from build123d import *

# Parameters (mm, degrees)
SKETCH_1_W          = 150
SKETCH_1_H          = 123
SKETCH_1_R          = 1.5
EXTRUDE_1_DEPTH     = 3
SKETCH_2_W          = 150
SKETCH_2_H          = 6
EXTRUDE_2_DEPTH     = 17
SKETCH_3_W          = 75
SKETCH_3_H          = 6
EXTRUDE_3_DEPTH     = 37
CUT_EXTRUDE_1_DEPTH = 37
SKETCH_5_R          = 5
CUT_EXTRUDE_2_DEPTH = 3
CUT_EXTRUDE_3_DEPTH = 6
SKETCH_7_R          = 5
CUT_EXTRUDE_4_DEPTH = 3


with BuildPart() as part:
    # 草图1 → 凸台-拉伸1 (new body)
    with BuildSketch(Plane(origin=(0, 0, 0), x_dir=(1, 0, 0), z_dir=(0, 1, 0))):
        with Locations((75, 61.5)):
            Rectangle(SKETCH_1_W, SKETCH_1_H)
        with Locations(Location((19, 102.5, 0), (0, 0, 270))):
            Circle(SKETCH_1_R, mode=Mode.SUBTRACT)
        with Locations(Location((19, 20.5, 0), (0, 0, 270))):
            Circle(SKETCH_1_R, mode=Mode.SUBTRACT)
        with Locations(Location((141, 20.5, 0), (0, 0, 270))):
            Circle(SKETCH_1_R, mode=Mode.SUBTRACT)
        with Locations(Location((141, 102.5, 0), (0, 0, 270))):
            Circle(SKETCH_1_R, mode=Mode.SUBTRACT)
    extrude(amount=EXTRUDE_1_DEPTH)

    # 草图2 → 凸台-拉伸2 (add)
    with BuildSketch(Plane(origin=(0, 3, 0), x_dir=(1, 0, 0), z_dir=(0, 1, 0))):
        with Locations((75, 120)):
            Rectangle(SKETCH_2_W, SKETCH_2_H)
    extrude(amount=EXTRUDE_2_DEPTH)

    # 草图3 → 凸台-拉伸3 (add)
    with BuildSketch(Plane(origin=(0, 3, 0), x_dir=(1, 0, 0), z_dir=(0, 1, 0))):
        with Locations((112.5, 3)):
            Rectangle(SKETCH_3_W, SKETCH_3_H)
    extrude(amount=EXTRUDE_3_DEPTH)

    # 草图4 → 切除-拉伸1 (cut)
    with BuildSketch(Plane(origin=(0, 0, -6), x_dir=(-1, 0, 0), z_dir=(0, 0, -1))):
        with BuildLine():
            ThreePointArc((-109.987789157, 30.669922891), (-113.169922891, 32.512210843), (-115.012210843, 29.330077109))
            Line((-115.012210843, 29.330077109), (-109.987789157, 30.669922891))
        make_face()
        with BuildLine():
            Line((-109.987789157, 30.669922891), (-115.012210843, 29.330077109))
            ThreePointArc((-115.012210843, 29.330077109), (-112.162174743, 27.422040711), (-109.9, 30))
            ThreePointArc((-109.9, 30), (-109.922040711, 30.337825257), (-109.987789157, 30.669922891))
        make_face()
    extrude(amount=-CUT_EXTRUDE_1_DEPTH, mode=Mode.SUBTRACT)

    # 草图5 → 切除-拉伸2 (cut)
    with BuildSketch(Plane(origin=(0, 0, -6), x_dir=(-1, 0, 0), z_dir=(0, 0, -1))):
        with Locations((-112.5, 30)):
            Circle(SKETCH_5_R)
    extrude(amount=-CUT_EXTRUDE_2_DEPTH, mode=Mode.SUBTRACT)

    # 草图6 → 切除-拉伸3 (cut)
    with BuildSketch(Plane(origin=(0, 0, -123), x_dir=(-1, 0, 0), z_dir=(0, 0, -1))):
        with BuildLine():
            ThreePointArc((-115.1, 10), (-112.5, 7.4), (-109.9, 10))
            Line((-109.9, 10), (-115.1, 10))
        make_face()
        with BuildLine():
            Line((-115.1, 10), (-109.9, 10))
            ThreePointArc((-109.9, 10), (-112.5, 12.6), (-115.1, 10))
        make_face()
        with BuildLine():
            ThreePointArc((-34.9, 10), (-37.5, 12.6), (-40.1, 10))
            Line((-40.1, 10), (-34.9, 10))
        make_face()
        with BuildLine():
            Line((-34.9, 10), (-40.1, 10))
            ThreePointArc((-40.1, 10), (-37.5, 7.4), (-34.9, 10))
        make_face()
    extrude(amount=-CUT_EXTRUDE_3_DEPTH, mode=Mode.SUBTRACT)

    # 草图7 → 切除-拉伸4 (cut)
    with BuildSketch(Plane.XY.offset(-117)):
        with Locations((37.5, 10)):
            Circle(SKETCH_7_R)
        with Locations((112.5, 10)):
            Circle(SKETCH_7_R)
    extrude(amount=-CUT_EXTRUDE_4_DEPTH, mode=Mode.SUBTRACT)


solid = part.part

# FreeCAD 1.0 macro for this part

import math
import FreeCAD as App
import Part
import Sketcher
from FreeCAD import Vector


def add_polygon(sketch, points):
    """Adds a closed chain of lines whose ends are joined by coincident constraints."""
    first, n = sketch.GeometryCount, len(points)
    for a, b in zip(points, points[1:] + points[:1]):
        sketch.addGeometry(Part.LineSegment(App.Vector(*a, 0), App.Vector(*b, 0)), False)
    for i in range(n):
        sketch.addConstraint(Sketcher.Constraint("Coincident", first + i, 2, first + (i + 1) % n, 1))

doc = App.newDocument("Part")
body = doc.addObject("PartDesign::Body", "Body")

# Sketch on XZ plane
sketch1 = body.newObject("Sketcher::SketchObject", "Sketch")
sketch1.AttachmentSupport = (doc.getObject("XZ_Plane"), [""])
sketch1.MapMode = "FlatFace"
add_polygon(sketch1, [(0, -123), (0, 0), (150, 0), (150, -123)])  # lines 0-3
sketch1.addGeometry(Part.Circle(Vector(19, -20.5, 0), Vector(0, 0, 1), 1.5), False)  # 4
sketch1.addGeometry(Part.Circle(Vector(141, -20.5, 0), Vector(0, 0, 1), 1.5), False)  # 5
sketch1.addGeometry(Part.Circle(Vector(19, -102.5, 0), Vector(0, 0, 1), 1.5), False)  # 6
sketch1.addGeometry(Part.Circle(Vector(141, -102.5, 0), Vector(0, 0, 1), 1.5), False)  # 7
sketch1.addConstraint([
    Sketcher.Constraint("Vertical", 0),
    Sketcher.Constraint("Horizontal", 1),
    Sketcher.Constraint("Vertical", 2),
    Sketcher.Constraint("Horizontal", 3),
    Sketcher.Constraint("Coincident", 0, 2, -1, 1),
    Sketcher.Constraint("Equal", 4, 5),
    Sketcher.Constraint("Equal", 5, 6),
    Sketcher.Constraint("Equal", 6, 7),
    Sketcher.Constraint("Horizontal", 4, 3, 5, 3),
    Sketcher.Constraint("Horizontal", 6, 3, 7, 3),
    Sketcher.Constraint("Vertical", 4, 3, 6, 3),
    Sketcher.Constraint("Vertical", 5, 3, 7, 3),
    Sketcher.Constraint("Diameter", 4, 3.0),
    Sketcher.Constraint("DistanceX", 1, 1, 1, 2, 150.0),
    Sketcher.Constraint("DistanceY", 0, 1, 0, 2, 123.0),
    Sketcher.Constraint("DistanceX", -1, 1, 4, 3, 19.0),
    Sketcher.Constraint("DistanceX", -1, 1, 5, 3, 141.0),
    Sketcher.Constraint("DistanceY", 6, 3, 4, 3, 82.0),
    Sketcher.Constraint("DistanceY", 4, 3, -1, 1, 20.5),
])
pad1 = body.newObject("PartDesign::Pad", "Pad")
pad1.Profile = sketch1
pad1.Length = 3
pad1.Reversed = True

# Sketch on XZ plane
sketch2 = body.newObject("Sketcher::SketchObject", "Sketch001")
sketch2.AttachmentSupport = (doc.getObject("XZ_Plane"), [""])
sketch2.MapMode = "FlatFace"
sketch2.AttachmentOffset = App.Placement(Vector(0, 0, -3), App.Rotation())
add_polygon(sketch2, [(0, -123), (0, -117), (150, -117), (150, -123)])  # lines 0-3
sketch2.addConstraint([
    Sketcher.Constraint("Vertical", 0),
    Sketcher.Constraint("Horizontal", 1),
    Sketcher.Constraint("Vertical", 2),
    Sketcher.Constraint("Horizontal", 3),
    Sketcher.Constraint("PointOnObject", 0, 2, -2),
    Sketcher.Constraint("DistanceX", 1, 1, 1, 2, 150.0),
    Sketcher.Constraint("DistanceY", 0, 1, 0, 2, 6.0),
    Sketcher.Constraint("DistanceY", 0, 2, -1, 1, 117.0),
])
pad2 = body.newObject("PartDesign::Pad", "Pad001")
pad2.Profile = sketch2
pad2.Length = 17
pad2.Reversed = True

# Sketch on XZ plane
sketch3 = body.newObject("Sketcher::SketchObject", "Sketch002")
sketch3.AttachmentSupport = (doc.getObject("XZ_Plane"), [""])
sketch3.MapMode = "FlatFace"
sketch3.AttachmentOffset = App.Placement(Vector(0, 0, -3), App.Rotation())
add_polygon(sketch3, [(75, -6), (75, 0), (150, 0), (150, -6)])  # lines 0-3
sketch3.addConstraint([
    Sketcher.Constraint("Vertical", 0),
    Sketcher.Constraint("Horizontal", 1),
    Sketcher.Constraint("Vertical", 2),
    Sketcher.Constraint("Horizontal", 3),
    Sketcher.Constraint("PointOnObject", 0, 2, -1),
    Sketcher.Constraint("DistanceX", 1, 1, 1, 2, 75.0),
    Sketcher.Constraint("DistanceY", 0, 1, 0, 2, 6.0),
    Sketcher.Constraint("DistanceX", -1, 1, 0, 2, 75.0),
])
pad3 = body.newObject("PartDesign::Pad", "Pad002")
pad3.Profile = sketch3
pad3.Length = 37
pad3.Reversed = True

# Sketch on XY plane
sketch4 = body.newObject("Sketcher::SketchObject", "Sketch003")
sketch4.AttachmentSupport = (doc.getObject("XY_Plane"), [""])
sketch4.MapMode = "FlatFace"
sketch4.AttachmentOffset = App.Placement(Vector(0, 0, -6), App.Rotation())
sketch4.addGeometry([
    Part.ArcOfCircle(Part.Circle(Vector(112.5, 30, 0), Vector(0, 0, 1), 2.6), math.radians(-15), math.radians(165)),
    Part.ArcOfCircle(Part.Circle(Vector(112.5, 30, 0), Vector(0, 0, 1), 2.6), math.radians(180), math.radians(345)),
    Part.ArcOfCircle(Part.Circle(Vector(112.5, 30, 0), Vector(0, 0, 1), 2.6), math.radians(165.07), math.radians(180)),
], False)
sketch4.addConstraint([
    Sketcher.Constraint("Tangent", 0, 1, 1, 2),
    Sketcher.Constraint("Tangent", 1, 1, 2, 2),
    Sketcher.Constraint("Tangent", 2, 1, 0, 2),
    Sketcher.Constraint("Horizontal", 2, 3, 1, 1),
    Sketcher.Constraint("Radius", 0, 2.6),
    Sketcher.Constraint("DistanceY", -1, 1, 0, 3, 30.0),
    Sketcher.Constraint("DistanceX", -1, 1, 0, 3, 112.5),
    Sketcher.Constraint("DistanceX", -1, 1, 0, 1, 115.012211),
    Sketcher.Constraint("DistanceX", -1, 1, 2, 1, 109.987789),
])
pocket1 = body.newObject("PartDesign::Pocket", "Pocket")
pocket1.Profile = sketch4
pocket1.Length = 37
pocket1.Reversed = True

# Sketch on XY plane
sketch5 = body.newObject("Sketcher::SketchObject", "Sketch004")
sketch5.AttachmentSupport = (doc.getObject("XY_Plane"), [""])
sketch5.MapMode = "FlatFace"
sketch5.AttachmentOffset = App.Placement(Vector(0, 0, -6), App.Rotation())
sketch5.addGeometry(Part.Circle(Vector(112, 30, 0), Vector(0, 0, 1), 5), False)
sketch5.addConstraint([
    Sketcher.Constraint("Diameter", 0, 10.0),
    Sketcher.Constraint("DistanceY", -1, 1, 0, 3, 30.0),
    Sketcher.Constraint("DistanceX", -1, 1, 0, 3, 112.5),
])
pocket2 = body.newObject("PartDesign::Pocket", "Pocket001")
pocket2.Profile = sketch5
pocket2.Length = 3
pocket2.Reversed = True

# Sketch on XY plane
sketch6 = body.newObject("Sketcher::SketchObject", "Sketch005")
sketch6.AttachmentSupport = (doc.getObject("XY_Plane"), [""])
sketch6.MapMode = "FlatFace"
sketch6.AttachmentOffset = App.Placement(Vector(0, 0, -123), App.Rotation())
sketch6.addGeometry([
    Part.Circle(Vector(112.5, 10, 0), Vector(0, 0, 1), 2.6),
    Part.Circle(Vector(37.5, 10, 0), Vector(0, 0, 1), 2.6),
], False)
sketch6.addConstraint([
    Sketcher.Constraint("Equal", 0, 1),
    Sketcher.Constraint("Horizontal", 0, 3, 1, 3),
    Sketcher.Constraint("Diameter", 0, 5.2),
    Sketcher.Constraint("DistanceY", -1, 1, 0, 3, 10.0),
    Sketcher.Constraint("DistanceX", 1, 3, 0, 3, 75.0),
    Sketcher.Constraint("DistanceX", -1, 1, 0, 3, 112.5),
])
pocket3 = body.newObject("PartDesign::Pocket", "Pocket002")
pocket3.Profile = sketch6
pocket3.Length = 6
pocket3.Reversed = True

# Sketch on XY plane
sketch7 = body.newObject("Sketcher::SketchObject", "Sketch006")
sketch7.AttachmentSupport = (doc.getObject("XY_Plane"), [""])
sketch7.MapMode = "FlatFace"
sketch7.AttachmentOffset = App.Placement(Vector(0, 0, -117), App.Rotation())
sketch7.addGeometry([
    Part.Circle(Vector(38, 10, 0), Vector(0, 0, 1), 5),
    Part.Circle(Vector(112, 10, 0), Vector(0, 0, 1), 5),
], False)
sketch7.addConstraint([
    Sketcher.Constraint("Equal", 0, 1),
    Sketcher.Constraint("Horizontal", 0, 3, 1, 3),
    Sketcher.Constraint("Diameter", 0, 10.0),
    Sketcher.Constraint("DistanceY", -1, 1, 0, 3, 10.0),
    Sketcher.Constraint("DistanceX", 0, 3, 1, 3, 75.0),
    Sketcher.Constraint("DistanceX", -1, 1, 0, 3, 37.5),
])
pocket4 = body.newObject("PartDesign::Pocket", "Pocket003")
pocket4.Profile = sketch7
pocket4.Length = 3

doc.recompute()
